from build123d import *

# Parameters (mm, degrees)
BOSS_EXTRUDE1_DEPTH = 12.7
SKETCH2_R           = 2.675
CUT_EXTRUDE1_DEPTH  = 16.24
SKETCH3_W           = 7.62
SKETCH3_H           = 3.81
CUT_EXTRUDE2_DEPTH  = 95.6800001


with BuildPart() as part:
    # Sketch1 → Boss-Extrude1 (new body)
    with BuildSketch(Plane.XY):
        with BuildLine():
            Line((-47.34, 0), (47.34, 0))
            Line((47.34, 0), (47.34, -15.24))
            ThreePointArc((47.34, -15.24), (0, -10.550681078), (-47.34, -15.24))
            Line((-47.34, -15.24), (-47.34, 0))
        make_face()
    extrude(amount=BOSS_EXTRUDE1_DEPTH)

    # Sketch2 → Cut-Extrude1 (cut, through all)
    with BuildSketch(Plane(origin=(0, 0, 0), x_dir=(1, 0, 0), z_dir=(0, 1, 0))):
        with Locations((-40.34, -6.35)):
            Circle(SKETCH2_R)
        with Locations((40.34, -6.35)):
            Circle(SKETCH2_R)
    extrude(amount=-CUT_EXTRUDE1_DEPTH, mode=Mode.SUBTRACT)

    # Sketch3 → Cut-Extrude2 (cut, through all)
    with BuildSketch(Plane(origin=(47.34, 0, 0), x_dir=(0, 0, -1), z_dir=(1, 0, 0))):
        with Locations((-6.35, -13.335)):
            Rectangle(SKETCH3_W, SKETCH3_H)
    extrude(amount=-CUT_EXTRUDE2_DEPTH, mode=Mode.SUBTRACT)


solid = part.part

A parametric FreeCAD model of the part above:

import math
import FreeCAD as App
import Part
import Sketcher

V = App.Vector
Q = App.Units.Quantity

doc = App.newDocument("Part")
body = doc.addObject("PartDesign::Body", "Body")

sketch1 = doc.addObject("Sketcher::SketchObject", "Sketch")
body.addObject(sketch1)
sketch1.AttachmentSupport = (doc.XY_Plane, [""])
sketch1.MapMode = "FlatFace"
sketch1.addGeometry([
    Part.LineSegment(V(47.34, 0, 0), V(-47.34, 0, 0)),
    Part.LineSegment(V(-47.34, 0, 0), V(-47.34, -15.24, 0)),
    Part.ArcOfCircle(Part.Circle(V(0, -251.850681, 0), V(0, 0, 1), 241.3), math.radians(78.685908), math.radians(101.314092)),
    Part.LineSegment(V(47.34, -15.24, 0), V(47.34, 0, 0)),
], False)
sketch1.addConstraint([
    Sketcher.Constraint("Coincident", 0, 2, 1, 1),
    Sketcher.Constraint("Coincident", 1, 2, 2, 2),
    Sketcher.Constraint("Coincident", 2, 1, 3, 1),
    Sketcher.Constraint("Coincident", 3, 2, 0, 1),
    Sketcher.Constraint("Horizontal", 0),
    Sketcher.Constraint("Vertical", 1),
    Sketcher.Constraint("Vertical", 3),
    Sketcher.Constraint("Symmetric", 0, 2, 3, 2, -1, 1),
    Sketcher.Constraint("PointOnObject", 2, 3, -2),
    Sketcher.Constraint("Radius", 2, Q("9.5 in")),
    Sketcher.Constraint("DistanceY", 1, 2, 1, 1, Q("0.6 in")),
    Sketcher.Constraint("DistanceX", 0, 2, 0, 1, 94.68),
])
pad1 = doc.addObject("PartDesign::Pad", "Pad")
body.addObject(pad1)
pad1.Profile = sketch1
pad1.Length = Q("0.5 in")

sketch2 = doc.addObject("Sketcher::SketchObject", "Sketch001")
body.addObject(sketch2)
sketch2.AttachmentSupport = (doc.XZ_Plane, [""])
sketch2.MapMode = "FlatFace"
sketch2.addGeometry([
    Part.Circle(V(-40.34, 6.35, 0), V(0, 0, 1), 2.675),
    Part.Circle(V(40.34, 6.35, 0), V(0, 0, 1), 2.675),
], False)
sketch2.addConstraint([
    Sketcher.Constraint("Equal", 0, 1),
    Sketcher.Constraint("Symmetric", 0, 3, 1, 3, -2),
    Sketcher.Constraint("Diameter", 0, 5.35),
    Sketcher.Constraint("DistanceY", -1, 1, 0, 3, Q("0.25 in")),
    Sketcher.Constraint("DistanceX", 0, 3, -1, 1, 40.34),
])
pocket1 = doc.addObject("PartDesign::Pocket", "Pocket")
body.addObject(pocket1)
pocket1.Profile = sketch2
pocket1.Type = "ThroughAll"
pocket1.Reversed = True

sketch3 = doc.addObject("Sketcher::SketchObject", "Sketch002")
body.addObject(sketch3)
sketch3.AttachmentSupport = (doc.YZ_Plane, [""])
sketch3.MapMode = "FlatFace"
sketch3.AttachmentOffset = App.Placement(V(0, 0, 47.34), App.Rotation())
sketch3.addGeometry([
    Part.LineSegment(V(-11.43, 10.16, 0), V(-15.24, 10.16, 0)),
    Part.LineSegment(V(-15.24, 10.16, 0), V(-15.24, 2.54, 0)),
    Part.LineSegment(V(-15.24, 2.54, 0), V(-11.43, 2.54, 0)),
    Part.LineSegment(V(-11.43, 2.54, 0), V(-11.43, 10.16, 0)),
], False)
sketch3.addConstraint([
    Sketcher.Constraint("Coincident", 0, 2, 1, 1),
    Sketcher.Constraint("Coincident", 1, 2, 2, 1),
    Sketcher.Constraint("Coincident", 2, 2, 3, 1),
    Sketcher.Constraint("Coincident", 3, 2, 0, 1),
    Sketcher.Constraint("Horizontal", 0),
    Sketcher.Constraint("Vertical", 1),
    Sketcher.Constraint("Horizontal", 2),
    Sketcher.Constraint("Vertical", 3),
    Sketcher.Constraint("DistanceY", 1, 2, 1, 1, Q("0.3 in")),
    Sketcher.Constraint("DistanceX", 0, 2, 0, 1, Q("0.15 in")),
    Sketcher.Constraint("DistanceX", 0, 2, -1, 1, Q("0.6 in")),
    Sketcher.Constraint("DistanceY", -1, 1, 0, 2, Q("0.4 in")),
])
pocket2 = doc.addObject("PartDesign::Pocket", "Pocket001")
body.addObject(pocket2)
pocket2.Profile = sketch3
pocket2.Type = "ThroughAll"

doc.recompute()
